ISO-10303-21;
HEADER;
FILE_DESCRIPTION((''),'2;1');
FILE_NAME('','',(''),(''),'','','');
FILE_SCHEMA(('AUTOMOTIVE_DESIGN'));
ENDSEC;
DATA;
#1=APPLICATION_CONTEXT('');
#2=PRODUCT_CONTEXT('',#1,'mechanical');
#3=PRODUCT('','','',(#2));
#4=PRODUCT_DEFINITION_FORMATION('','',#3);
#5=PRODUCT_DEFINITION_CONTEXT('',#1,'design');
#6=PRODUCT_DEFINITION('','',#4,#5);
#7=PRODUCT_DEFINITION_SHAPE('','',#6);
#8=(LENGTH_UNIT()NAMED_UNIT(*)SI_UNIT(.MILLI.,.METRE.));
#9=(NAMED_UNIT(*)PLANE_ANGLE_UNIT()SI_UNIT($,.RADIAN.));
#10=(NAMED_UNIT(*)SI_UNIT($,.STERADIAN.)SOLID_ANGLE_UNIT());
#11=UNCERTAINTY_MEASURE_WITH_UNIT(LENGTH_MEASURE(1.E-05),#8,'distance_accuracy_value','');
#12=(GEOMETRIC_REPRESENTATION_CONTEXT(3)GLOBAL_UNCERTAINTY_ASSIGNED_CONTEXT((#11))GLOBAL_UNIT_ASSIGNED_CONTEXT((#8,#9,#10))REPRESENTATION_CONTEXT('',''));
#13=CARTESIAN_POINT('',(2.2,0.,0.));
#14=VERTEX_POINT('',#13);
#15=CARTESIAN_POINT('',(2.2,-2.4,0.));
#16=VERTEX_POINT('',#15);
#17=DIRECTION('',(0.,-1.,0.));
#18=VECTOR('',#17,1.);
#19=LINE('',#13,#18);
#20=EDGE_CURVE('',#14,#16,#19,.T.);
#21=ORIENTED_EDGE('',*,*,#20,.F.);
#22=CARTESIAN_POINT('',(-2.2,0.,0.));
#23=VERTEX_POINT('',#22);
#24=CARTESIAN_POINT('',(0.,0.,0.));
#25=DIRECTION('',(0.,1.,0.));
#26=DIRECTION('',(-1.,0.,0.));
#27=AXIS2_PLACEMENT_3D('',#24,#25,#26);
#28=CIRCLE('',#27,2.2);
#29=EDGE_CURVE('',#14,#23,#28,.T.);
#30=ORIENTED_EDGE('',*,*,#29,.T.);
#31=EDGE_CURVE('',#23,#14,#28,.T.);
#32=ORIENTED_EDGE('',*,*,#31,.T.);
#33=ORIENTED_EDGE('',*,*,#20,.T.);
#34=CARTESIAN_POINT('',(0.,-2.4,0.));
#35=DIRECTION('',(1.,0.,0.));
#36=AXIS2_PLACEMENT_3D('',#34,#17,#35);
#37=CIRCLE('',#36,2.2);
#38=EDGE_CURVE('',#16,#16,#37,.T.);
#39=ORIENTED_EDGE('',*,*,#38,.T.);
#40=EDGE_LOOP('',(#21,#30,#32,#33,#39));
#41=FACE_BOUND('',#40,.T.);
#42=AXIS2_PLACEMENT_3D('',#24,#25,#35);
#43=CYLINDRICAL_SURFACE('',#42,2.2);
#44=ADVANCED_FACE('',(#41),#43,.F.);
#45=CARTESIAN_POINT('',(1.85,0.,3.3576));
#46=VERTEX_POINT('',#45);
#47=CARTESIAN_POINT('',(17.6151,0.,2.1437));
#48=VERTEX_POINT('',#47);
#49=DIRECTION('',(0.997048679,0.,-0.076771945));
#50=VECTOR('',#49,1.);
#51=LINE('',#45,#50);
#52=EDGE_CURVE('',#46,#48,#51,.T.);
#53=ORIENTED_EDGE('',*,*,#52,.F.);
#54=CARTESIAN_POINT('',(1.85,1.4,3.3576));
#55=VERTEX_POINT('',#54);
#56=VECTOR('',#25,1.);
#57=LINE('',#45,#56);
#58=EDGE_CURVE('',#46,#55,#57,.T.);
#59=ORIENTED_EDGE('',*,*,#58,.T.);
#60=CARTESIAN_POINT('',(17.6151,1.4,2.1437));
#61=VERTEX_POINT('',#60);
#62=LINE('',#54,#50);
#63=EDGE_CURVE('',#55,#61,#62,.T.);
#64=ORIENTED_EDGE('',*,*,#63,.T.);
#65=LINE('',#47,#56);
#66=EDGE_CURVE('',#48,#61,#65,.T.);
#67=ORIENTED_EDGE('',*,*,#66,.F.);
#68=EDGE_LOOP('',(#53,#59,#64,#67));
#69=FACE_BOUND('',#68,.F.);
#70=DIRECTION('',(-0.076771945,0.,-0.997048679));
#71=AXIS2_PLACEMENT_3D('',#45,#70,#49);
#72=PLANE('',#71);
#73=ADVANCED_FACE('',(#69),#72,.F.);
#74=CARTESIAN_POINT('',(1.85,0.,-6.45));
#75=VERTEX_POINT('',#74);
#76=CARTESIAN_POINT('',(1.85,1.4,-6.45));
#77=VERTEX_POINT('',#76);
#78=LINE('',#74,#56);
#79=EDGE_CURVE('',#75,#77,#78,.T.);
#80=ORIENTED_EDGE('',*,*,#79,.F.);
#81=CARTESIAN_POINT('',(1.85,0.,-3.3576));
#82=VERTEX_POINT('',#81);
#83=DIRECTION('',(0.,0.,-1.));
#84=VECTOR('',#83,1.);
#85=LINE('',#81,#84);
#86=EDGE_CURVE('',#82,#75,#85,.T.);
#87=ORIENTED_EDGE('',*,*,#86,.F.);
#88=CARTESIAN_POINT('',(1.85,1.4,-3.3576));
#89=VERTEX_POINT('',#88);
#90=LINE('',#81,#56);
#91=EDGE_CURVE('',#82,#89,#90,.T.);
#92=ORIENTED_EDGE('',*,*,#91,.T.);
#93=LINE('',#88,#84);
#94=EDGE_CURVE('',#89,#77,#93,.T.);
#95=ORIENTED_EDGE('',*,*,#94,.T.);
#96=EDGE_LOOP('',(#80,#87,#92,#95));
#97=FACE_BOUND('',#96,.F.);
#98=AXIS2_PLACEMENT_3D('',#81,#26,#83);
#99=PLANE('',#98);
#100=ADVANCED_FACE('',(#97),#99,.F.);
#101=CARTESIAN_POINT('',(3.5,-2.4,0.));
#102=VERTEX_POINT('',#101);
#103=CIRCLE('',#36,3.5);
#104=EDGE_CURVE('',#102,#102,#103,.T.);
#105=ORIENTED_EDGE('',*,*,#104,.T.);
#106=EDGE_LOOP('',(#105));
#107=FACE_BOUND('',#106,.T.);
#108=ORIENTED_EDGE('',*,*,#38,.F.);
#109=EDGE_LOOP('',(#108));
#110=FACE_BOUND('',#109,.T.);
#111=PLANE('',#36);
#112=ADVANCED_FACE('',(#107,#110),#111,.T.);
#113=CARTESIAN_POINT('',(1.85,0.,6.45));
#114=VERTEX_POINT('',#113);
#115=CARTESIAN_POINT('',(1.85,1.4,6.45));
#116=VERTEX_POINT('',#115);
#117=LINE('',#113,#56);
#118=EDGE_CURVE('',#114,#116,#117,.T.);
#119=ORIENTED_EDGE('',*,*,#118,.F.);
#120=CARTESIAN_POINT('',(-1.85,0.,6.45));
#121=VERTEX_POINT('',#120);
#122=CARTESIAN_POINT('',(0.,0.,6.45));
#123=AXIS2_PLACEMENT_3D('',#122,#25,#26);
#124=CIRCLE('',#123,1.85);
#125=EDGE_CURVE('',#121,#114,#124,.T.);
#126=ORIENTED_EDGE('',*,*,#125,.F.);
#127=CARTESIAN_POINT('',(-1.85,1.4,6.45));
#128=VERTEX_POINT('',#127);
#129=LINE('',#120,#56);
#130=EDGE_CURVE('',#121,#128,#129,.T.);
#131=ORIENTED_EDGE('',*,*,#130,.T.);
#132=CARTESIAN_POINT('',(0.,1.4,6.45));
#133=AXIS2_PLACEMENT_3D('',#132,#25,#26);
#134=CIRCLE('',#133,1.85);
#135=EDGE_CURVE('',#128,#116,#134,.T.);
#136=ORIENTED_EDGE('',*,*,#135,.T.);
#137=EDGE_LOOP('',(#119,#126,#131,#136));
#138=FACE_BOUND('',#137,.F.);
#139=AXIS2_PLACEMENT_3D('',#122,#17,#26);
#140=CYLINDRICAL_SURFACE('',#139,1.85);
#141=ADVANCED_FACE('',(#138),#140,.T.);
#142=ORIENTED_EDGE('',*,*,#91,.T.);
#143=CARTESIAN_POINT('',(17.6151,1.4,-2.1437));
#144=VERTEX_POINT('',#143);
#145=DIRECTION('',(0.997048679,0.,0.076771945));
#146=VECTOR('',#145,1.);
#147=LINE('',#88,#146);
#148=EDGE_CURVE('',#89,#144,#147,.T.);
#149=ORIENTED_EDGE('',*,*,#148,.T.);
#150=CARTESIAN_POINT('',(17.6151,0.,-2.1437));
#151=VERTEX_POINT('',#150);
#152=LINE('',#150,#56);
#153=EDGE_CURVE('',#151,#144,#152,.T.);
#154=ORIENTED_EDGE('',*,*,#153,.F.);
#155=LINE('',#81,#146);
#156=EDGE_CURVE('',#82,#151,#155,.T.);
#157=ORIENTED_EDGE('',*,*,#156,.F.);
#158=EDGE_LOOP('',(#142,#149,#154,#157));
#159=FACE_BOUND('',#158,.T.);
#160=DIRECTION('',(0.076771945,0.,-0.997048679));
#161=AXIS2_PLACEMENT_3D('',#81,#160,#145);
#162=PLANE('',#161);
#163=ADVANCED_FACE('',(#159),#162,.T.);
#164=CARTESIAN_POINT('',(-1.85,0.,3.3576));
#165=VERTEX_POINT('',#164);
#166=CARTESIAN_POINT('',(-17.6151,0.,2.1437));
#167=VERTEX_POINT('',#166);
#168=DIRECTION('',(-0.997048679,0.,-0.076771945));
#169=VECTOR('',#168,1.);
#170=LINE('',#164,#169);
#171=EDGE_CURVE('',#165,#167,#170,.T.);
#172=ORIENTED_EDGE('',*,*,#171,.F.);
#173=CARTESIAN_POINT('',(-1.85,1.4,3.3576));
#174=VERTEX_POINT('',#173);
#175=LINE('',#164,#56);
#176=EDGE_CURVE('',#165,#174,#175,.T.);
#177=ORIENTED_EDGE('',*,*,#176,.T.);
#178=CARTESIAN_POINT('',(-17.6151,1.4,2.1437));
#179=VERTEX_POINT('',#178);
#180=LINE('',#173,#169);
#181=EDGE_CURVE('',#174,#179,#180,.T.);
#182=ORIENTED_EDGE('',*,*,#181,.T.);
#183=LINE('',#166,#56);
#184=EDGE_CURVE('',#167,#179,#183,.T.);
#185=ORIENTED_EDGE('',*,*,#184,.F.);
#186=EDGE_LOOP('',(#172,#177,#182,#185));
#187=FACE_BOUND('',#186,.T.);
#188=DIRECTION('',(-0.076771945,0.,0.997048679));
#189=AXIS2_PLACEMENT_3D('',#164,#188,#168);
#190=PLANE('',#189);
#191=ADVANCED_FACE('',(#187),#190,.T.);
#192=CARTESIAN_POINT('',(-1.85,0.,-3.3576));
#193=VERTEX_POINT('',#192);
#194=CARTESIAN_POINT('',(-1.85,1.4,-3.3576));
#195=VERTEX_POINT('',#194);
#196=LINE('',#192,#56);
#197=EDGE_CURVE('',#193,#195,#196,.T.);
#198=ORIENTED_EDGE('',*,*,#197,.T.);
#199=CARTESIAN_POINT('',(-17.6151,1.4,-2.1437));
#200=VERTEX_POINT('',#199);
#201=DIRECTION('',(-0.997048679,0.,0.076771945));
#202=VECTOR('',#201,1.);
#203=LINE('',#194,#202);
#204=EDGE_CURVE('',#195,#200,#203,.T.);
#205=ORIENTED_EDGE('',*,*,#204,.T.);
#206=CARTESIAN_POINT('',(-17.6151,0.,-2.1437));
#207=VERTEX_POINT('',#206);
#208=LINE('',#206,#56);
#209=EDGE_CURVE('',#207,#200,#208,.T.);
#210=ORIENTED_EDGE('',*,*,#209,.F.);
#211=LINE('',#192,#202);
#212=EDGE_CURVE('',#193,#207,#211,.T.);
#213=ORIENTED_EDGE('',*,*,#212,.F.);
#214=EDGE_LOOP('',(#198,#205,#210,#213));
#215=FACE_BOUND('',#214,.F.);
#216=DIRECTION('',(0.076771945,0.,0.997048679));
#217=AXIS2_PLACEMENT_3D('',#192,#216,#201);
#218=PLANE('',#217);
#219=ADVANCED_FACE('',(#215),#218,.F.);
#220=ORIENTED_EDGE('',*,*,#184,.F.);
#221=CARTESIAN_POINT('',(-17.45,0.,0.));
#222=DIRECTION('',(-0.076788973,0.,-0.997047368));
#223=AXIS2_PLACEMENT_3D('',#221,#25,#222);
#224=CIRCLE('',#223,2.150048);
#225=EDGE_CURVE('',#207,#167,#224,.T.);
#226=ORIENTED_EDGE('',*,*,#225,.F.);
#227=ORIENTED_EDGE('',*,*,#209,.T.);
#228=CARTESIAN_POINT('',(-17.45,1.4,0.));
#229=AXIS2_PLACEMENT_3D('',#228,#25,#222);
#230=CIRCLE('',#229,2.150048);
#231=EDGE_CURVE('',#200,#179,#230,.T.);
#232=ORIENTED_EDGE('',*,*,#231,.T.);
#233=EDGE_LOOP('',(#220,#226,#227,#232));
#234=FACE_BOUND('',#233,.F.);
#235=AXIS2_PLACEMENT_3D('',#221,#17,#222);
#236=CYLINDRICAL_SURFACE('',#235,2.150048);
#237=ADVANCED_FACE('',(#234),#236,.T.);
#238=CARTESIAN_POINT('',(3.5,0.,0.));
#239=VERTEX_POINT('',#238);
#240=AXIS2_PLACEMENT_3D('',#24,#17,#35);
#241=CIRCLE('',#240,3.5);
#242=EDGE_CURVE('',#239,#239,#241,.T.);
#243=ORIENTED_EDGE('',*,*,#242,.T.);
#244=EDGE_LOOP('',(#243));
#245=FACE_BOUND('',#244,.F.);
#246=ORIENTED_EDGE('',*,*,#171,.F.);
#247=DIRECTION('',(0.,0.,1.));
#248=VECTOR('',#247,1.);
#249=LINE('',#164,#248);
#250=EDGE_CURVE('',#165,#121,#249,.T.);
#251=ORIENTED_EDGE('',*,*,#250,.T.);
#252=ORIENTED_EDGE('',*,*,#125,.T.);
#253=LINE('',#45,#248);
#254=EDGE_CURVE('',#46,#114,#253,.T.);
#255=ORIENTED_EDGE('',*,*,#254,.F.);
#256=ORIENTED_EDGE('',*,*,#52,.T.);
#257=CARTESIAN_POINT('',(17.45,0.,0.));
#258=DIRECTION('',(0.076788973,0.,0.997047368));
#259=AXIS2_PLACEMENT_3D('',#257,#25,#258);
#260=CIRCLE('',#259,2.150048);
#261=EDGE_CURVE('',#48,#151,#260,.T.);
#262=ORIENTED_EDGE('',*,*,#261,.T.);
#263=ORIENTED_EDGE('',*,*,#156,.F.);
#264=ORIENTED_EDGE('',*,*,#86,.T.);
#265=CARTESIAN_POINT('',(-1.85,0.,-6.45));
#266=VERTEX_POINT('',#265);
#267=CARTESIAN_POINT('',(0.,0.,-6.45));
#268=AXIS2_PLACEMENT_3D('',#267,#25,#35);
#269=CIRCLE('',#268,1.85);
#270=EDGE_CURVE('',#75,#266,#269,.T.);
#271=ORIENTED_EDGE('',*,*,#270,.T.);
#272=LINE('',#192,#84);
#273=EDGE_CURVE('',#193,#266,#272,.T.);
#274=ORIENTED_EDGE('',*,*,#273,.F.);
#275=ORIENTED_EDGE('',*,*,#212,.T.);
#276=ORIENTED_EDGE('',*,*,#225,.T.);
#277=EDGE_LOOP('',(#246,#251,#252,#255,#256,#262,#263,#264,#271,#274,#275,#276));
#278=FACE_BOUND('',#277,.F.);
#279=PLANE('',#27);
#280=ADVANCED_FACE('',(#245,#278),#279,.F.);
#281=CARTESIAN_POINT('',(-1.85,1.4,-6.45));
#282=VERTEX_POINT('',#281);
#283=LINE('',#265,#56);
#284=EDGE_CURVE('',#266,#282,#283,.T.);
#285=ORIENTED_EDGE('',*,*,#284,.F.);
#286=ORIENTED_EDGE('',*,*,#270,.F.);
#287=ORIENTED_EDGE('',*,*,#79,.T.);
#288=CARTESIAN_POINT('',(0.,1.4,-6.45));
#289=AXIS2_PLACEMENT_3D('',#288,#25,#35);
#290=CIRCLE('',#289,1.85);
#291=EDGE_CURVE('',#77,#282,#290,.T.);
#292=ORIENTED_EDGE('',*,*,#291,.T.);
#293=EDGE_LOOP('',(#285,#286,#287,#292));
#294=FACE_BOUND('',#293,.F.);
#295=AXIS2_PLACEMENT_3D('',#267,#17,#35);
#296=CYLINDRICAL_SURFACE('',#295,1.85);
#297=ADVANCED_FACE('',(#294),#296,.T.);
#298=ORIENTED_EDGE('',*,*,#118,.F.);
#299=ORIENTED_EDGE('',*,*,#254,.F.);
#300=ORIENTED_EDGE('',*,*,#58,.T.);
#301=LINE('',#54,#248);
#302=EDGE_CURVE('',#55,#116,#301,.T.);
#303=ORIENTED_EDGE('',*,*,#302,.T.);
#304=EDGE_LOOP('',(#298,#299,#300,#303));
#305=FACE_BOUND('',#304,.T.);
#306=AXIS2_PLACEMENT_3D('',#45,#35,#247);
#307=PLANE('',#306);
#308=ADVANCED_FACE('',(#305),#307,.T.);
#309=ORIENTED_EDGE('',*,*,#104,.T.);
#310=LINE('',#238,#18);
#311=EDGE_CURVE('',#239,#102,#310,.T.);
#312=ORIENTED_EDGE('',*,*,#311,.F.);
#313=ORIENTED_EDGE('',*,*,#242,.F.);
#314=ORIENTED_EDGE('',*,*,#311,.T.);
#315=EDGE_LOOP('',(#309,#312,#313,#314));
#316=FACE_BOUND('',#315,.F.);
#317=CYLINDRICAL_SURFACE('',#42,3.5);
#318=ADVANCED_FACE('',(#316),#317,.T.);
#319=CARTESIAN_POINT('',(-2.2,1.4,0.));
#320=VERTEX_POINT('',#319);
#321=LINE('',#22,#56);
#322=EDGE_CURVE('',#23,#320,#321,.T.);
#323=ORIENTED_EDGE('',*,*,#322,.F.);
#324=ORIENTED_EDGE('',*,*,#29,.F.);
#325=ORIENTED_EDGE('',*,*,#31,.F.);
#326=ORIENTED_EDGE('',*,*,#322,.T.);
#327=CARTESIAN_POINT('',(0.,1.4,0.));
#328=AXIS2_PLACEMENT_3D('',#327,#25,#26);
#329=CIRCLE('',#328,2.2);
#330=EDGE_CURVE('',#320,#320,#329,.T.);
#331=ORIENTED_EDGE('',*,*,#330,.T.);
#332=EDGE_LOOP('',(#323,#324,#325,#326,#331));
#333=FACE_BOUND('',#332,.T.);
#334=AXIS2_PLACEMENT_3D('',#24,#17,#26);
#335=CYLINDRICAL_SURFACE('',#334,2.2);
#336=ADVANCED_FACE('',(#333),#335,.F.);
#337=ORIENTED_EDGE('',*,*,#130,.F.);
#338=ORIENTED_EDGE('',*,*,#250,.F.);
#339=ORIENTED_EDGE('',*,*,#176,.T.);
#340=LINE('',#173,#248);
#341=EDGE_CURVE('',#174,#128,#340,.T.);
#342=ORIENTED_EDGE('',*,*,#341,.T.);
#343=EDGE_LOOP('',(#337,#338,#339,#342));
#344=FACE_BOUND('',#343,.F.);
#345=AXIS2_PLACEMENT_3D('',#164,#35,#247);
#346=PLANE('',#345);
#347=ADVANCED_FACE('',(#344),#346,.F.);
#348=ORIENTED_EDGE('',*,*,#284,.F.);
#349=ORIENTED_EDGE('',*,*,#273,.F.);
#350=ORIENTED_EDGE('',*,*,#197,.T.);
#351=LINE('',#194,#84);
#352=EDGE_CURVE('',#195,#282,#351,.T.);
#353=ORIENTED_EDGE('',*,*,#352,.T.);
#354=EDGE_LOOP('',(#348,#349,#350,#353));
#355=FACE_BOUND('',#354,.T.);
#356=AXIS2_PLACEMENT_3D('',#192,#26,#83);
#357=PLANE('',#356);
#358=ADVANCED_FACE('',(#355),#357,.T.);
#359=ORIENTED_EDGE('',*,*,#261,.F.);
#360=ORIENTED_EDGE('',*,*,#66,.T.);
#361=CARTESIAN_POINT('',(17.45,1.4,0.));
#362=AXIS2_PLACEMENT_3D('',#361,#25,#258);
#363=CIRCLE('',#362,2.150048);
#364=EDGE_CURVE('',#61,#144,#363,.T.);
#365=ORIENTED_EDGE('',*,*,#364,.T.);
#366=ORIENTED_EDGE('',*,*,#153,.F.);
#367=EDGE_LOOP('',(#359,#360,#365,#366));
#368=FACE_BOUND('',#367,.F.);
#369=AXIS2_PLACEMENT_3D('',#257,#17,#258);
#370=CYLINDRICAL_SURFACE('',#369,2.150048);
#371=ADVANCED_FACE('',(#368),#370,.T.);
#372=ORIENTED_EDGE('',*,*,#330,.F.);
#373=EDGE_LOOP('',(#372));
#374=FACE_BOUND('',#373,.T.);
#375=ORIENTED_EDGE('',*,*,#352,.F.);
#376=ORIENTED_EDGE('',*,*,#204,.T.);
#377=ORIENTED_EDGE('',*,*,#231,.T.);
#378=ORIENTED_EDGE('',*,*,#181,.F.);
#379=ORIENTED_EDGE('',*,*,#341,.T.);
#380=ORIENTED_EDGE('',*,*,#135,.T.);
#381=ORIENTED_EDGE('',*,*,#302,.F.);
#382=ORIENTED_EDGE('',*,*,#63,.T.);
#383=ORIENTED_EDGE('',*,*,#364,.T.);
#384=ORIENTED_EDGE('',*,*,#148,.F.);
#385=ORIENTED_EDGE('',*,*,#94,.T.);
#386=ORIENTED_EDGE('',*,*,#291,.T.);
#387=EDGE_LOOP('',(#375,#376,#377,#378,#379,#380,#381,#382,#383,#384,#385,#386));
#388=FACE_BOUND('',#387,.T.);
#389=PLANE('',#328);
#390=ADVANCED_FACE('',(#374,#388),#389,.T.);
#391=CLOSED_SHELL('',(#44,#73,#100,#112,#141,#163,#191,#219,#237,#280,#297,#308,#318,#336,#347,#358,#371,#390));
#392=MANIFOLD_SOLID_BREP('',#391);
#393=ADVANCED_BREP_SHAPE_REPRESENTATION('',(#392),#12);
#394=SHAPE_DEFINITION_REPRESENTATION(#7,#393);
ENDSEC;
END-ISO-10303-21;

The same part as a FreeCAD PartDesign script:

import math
import FreeCAD as App
import Part
import Sketcher

V = App.Vector

doc = App.newDocument("Part")
body = doc.addObject("PartDesign::Body", "Body")

# Sketch on XZ plane
sketch1 = body.newObject("Sketcher::SketchObject", "Sketch")
sketch1.AttachmentSupport = (doc.getObject("XZ_Plane"), [""])
sketch1.MapMode = "FlatFace"
sketch1.addGeometry(Part.LineSegment(V(-1.9, 3.4, 0), V(-1.9, 6.5, 0)), False)
sketch1.addGeometry(Part.ArcOfCircle(Part.Circle(V(0, 6.5, 0), V(0, 0, 1), 1.9), math.radians(0), math.radians(180)), False)
sketch1.addGeometry(Part.LineSegment(V(1.9, 6.5, 0), V(1.9, 3.4, 0)), False)
sketch1.addGeometry(Part.LineSegment(V(1.9, 3.4, 0), V(17.6, 2.1, 0)), False)
sketch1.addGeometry(Part.ArcOfCircle(Part.Circle(V(17.4, 0, 0), V(0, 0, 1), 2.2), math.radians(-86), math.radians(86)), False)
sketch1.addGeometry(Part.LineSegment(V(17.6, -2.1, 0), V(1.9, -3.4, 0)), False)
sketch1.addGeometry(Part.LineSegment(V(1.9, -3.4, 0), V(1.9, -6.5, 0)), False)
sketch1.addGeometry(Part.ArcOfCircle(Part.Circle(V(0, -6.5, 0), V(0, 0, 1), 1.9), math.radians(180), math.radians(360)), False)
sketch1.addGeometry(Part.LineSegment(V(-1.9, -6.5, 0), V(-1.9, -3.4, 0)), False)
sketch1.addGeometry(Part.LineSegment(V(-1.9, -3.4, 0), V(-17.6, -2.1, 0)), False)
sketch1.addGeometry(Part.ArcOfCircle(Part.Circle(V(-17.4, 0, 0), V(0, 0, 1), 2.2), math.radians(94), math.radians(266)), False)
sketch1.addGeometry(Part.LineSegment(V(-17.6, 2.1, 0), V(-1.9, 3.4, 0)), False)
sketch1.addGeometry(Part.Circle(V(0, 0, 0), V(0, 0, 1), 2.2), False)
sketch1.addConstraint(Sketcher.Constraint("Tangent", 0, 2, 1, 2))
sketch1.addConstraint(Sketcher.Constraint("Tangent", 1, 1, 2, 1))
sketch1.addConstraint(Sketcher.Constraint("Coincident", 2, 2, 3, 1))
sketch1.addConstraint(Sketcher.Constraint("Tangent", 3, 2, 4, 2))
sketch1.addConstraint(Sketcher.Constraint("Tangent", 4, 1, 5, 1))
sketch1.addConstraint(Sketcher.Constraint("Coincident", 5, 2, 6, 1))
sketch1.addConstraint(Sketcher.Constraint("Tangent", 6, 2, 7, 2))
sketch1.addConstraint(Sketcher.Constraint("Tangent", 7, 1, 8, 1))
sketch1.addConstraint(Sketcher.Constraint("Coincident", 8, 2, 9, 1))
sketch1.addConstraint(Sketcher.Constraint("Tangent", 9, 2, 10, 2))
sketch1.addConstraint(Sketcher.Constraint("Tangent", 10, 1, 11, 1))
sketch1.addConstraint(Sketcher.Constraint("Coincident", 11, 2, 0, 1))
sketch1.addConstraint(Sketcher.Constraint("Vertical", 0))
sketch1.addConstraint(Sketcher.Constraint("Vertical", 2))
sketch1.addConstraint(Sketcher.Constraint("Vertical", 6))
sketch1.addConstraint(Sketcher.Constraint("Vertical", 8))
sketch1.addConstraint(Sketcher.Constraint("Coincident", 12, 3, -1, 1))
sketch1.addConstraint(Sketcher.Constraint("Equal", 1, 7))
sketch1.addConstraint(Sketcher.Constraint("Equal", 4, 10))
sketch1.addConstraint(Sketcher.Constraint("Symmetric", 1, 3, 7, 3, -1, 1))
sketch1.addConstraint(Sketcher.Constraint("Symmetric", 4, 3, 10, 3, -1, 1))
sketch1.addConstraint(Sketcher.Constraint("Symmetric", 5, 2, 8, 2, -2))
sketch1.addConstraint(Sketcher.Constraint("Symmetric", 3, 2, 10, 1, -2))
sketch1.addConstraint(Sketcher.Constraint("Parallel", 3, 9))
sketch1.addConstraint(Sketcher.Constraint("Diameter", 12, 4.4))
sketch1.addConstraint(Sketcher.Constraint("Radius", 1, 1.85))
sketch1.addConstraint(Sketcher.Constraint("Radius", 4, 2.15))
sketch1.addConstraint(Sketcher.Constraint("DistanceY", 7, 3, 1, 3, 12.9))
sketch1.addConstraint(Sketcher.Constraint("DistanceX", 10, 3, 4, 3, 34.9))
sketch1.addConstraint(Sketcher.Constraint("DistanceY", 0, 1, 0, 2, 3.0924))
pad1 = body.newObject("PartDesign::Pad", "Pad")
pad1.Profile = sketch1
pad1.Length = 1.4
pad1.Reversed = True

# Sketch on XZ plane
sketch2 = body.newObject("Sketcher::SketchObject", "Sketch001")
sketch2.AttachmentSupport = (doc.getObject("XZ_Plane"), [""])
sketch2.MapMode = "FlatFace"
sketch2.addGeometry(Part.Circle(V(0, 0, 0), V(0, 0, 1), 3.5), False)
sketch2.addGeometry(Part.Circle(V(0, 0, 0), V(0, 0, 1), 2.2), False)
sketch2.addConstraint(Sketcher.Constraint("Coincident", 0, 3, -1, 1))
sketch2.addConstraint(Sketcher.Constraint("Coincident", 1, 3, -1, 1))
sketch2.addConstraint(Sketcher.Constraint("Diameter", 0, 7.0))
sketch2.addConstraint(Sketcher.Constraint("Diameter", 1, 4.4))
pad2 = body.newObject("PartDesign::Pad", "Pad001")
pad2.Profile = sketch2
pad2.Length = 2.4

doc.recompute()
